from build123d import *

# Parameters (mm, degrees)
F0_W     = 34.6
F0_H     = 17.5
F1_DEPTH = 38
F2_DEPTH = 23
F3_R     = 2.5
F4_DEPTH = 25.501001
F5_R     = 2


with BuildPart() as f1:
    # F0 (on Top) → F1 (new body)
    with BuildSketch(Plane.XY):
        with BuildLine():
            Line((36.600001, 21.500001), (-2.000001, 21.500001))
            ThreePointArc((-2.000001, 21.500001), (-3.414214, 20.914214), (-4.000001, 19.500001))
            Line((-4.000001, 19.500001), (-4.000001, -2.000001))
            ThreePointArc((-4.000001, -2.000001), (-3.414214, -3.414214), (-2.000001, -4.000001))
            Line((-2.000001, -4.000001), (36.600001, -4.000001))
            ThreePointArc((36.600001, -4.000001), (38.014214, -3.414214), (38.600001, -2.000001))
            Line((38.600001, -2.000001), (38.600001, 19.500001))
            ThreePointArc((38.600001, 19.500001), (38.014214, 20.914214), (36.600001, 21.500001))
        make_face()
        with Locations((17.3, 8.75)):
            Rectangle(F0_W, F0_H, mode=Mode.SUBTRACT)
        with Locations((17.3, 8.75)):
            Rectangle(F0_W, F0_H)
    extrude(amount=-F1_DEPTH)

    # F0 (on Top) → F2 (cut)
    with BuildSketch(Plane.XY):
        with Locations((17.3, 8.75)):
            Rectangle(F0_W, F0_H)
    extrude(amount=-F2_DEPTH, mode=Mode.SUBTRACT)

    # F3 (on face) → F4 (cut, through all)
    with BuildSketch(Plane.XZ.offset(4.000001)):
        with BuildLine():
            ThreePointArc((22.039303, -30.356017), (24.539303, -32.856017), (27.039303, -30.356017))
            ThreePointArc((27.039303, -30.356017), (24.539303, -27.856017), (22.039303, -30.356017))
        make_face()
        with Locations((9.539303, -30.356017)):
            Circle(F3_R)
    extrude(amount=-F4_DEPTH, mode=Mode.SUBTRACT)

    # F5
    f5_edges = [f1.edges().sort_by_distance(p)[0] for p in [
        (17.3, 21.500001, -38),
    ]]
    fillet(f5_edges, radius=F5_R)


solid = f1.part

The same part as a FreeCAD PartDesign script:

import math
import FreeCAD as App
import Part
import Sketcher
Q = App.Units.Quantity


def edges_at(feature, points):
    """Names of the edges that pass closest to the given points."""
    edges = feature.Shape.Edges
    near = lambda p: min(range(len(edges)), key=lambda i: edges[i].distToShape(Part.Vertex(*p))[0])
    return sorted({f"Edge{near(p) + 1}" for p in points})

doc = App.newDocument("Part")
body = doc.addObject("PartDesign::Body", "Body")

# Sketch on XY plane
sketch1 = body.newObject("Sketcher::SketchObject", "Sketch")
sketch1.AttachmentSupport = (doc.getObject("XY_Plane"), [""])
sketch1.MapMode = "FlatFace"
sketch1.addGeometry([
    Part.LineSegment(App.Vector(36.600001, 21.500001, 0), App.Vector(-2.000001, 21.500001, 0)),  # 0
    Part.ArcOfCircle(Part.Circle(App.Vector(-1.999999, 19.499999, 0), App.Vector(0, 0, 1), 2.000002), math.radians(90.000055), math.radians(179.999945)),  # 1
    Part.LineSegment(App.Vector(-4.000001, 19.500001, 0), App.Vector(-4.000001, -2.000001, 0)),  # 2
    Part.ArcOfCircle(Part.Circle(App.Vector(-1.999999, -1.999999, 0), App.Vector(0, 0, 1), 2.000002), math.radians(-179.999945), math.radians(-90.000055)),  # 3
    Part.LineSegment(App.Vector(-2.000001, -4.000001, 0), App.Vector(36.600001, -4.000001, 0)),  # 4
    Part.ArcOfCircle(Part.Circle(App.Vector(36.599999, -1.999999, 0), App.Vector(0, 0, 1), 2.000002), math.radians(-89.999945), math.radians(-0.000055)),  # 5
    Part.LineSegment(App.Vector(38.600001, -2.000001, 0), App.Vector(38.600001, 19.500001, 0)),  # 6
    Part.ArcOfCircle(Part.Circle(App.Vector(36.599999, 19.499999, 0), App.Vector(0, 0, 1), 2.000002), math.radians(0.000055), math.radians(89.999945)),  # 7
], False)
sketch1.addConstraint([
    Sketcher.Constraint("Tangent", 0, 2, 1, 1),
    Sketcher.Constraint("Tangent", 1, 2, 2, 1),
    Sketcher.Constraint("Tangent", 2, 2, 3, 1),
    Sketcher.Constraint("Tangent", 3, 2, 4, 1),
    Sketcher.Constraint("Tangent", 4, 2, 5, 1),
    Sketcher.Constraint("Tangent", 5, 2, 6, 1),
    Sketcher.Constraint("Tangent", 6, 2, 7, 1),
    Sketcher.Constraint("Tangent", 7, 2, 0, 1),
    Sketcher.Constraint("Horizontal", 0),
    Sketcher.Constraint("Vertical", 2),
    Sketcher.Constraint("Horizontal", 4),
    Sketcher.Constraint("Vertical", 6),
    Sketcher.Constraint("Equal", 1, 3),
    Sketcher.Constraint("Equal", 3, 5),
    Sketcher.Constraint("Equal", 5, 7),
    Sketcher.Constraint("Radius", 1, Q("2.000002 mm")),
    Sketcher.Constraint("DistanceX", 0, 2, 0, 1, Q("38.600002 mm")),
    Sketcher.Constraint("DistanceX", 1, 3, -1, 1, Q("1.999999 mm")),
    Sketcher.Constraint("DistanceY", 3, 3, -1, 1, Q("1.999999 mm")),
    Sketcher.Constraint("DistanceY", -1, 1, 1, 3, Q("19.499999 mm")),
])
pad1 = body.newObject("PartDesign::Pad", "Pad")
pad1.Profile = sketch1
pad1.Length = 38
pad1.Reversed = True

# Sketch on XY plane
sketch2 = body.newObject("Sketcher::SketchObject", "Sketch001")
sketch2.AttachmentSupport = (doc.getObject("XY_Plane"), [""])
sketch2.MapMode = "FlatFace"
sketch2.addGeometry([
    Part.LineSegment(App.Vector(0, 17.5, 0), App.Vector(0, 0, 0)),
    Part.LineSegment(App.Vector(0, 0, 0), App.Vector(34.6, 0, 0)),
    Part.LineSegment(App.Vector(34.6, 0, 0), App.Vector(34.6, 17.5, 0)),
    Part.LineSegment(App.Vector(34.6, 17.5, 0), App.Vector(0, 17.5, 0)),
], False)
sketch2.addConstraint([
    Sketcher.Constraint("Coincident", 0, 2, 1, 1),
    Sketcher.Constraint("Coincident", 1, 2, 2, 1),
    Sketcher.Constraint("Coincident", 2, 2, 3, 1),
    Sketcher.Constraint("Coincident", 3, 2, 0, 1),
    Sketcher.Constraint("Vertical", 0),
    Sketcher.Constraint("Horizontal", 1),
    Sketcher.Constraint("Vertical", 2),
    Sketcher.Constraint("Horizontal", 3),
    Sketcher.Constraint("Coincident", 0, 2, -1, 1),
    Sketcher.Constraint("DistanceX", 1, 1, 1, 2, Q("34.6 mm")),
    Sketcher.Constraint("DistanceY", 0, 2, 0, 1, Q("17.5 mm")),
])
pocket1 = body.newObject("PartDesign::Pocket", "Pocket")
pocket1.Profile = sketch2
pocket1.Length = 23

# Sketch on XZ plane
sketch3 = body.newObject("Sketcher::SketchObject", "Sketch002")
sketch3.AttachmentSupport = (doc.getObject("XZ_Plane"), [""])
sketch3.MapMode = "FlatFace"
sketch3.AttachmentOffset = App.Placement(App.Vector(0, 0, 4.000001), App.Rotation())
sketch3.addGeometry([
    Part.Circle(App.Vector(24.539303, -30.356017, 0), App.Vector(0, 0, 1), 2.5),
    Part.Circle(App.Vector(9.539303, -30.356017, 0), App.Vector(0, 0, 1), 2.5),
], False)
sketch3.addConstraint([
    Sketcher.Constraint("Equal", 0, 1),
    Sketcher.Constraint("Horizontal", 0, 3, 1, 3),
    Sketcher.Constraint("Diameter", 0, Q("5 mm")),
    Sketcher.Constraint("DistanceX", 1, 3, 0, 3, Q("15 mm")),
    Sketcher.Constraint("DistanceX", -1, 1, 0, 3, Q("24.539303 mm")),
    Sketcher.Constraint("DistanceY", 0, 3, -1, 1, Q("30.356017 mm")),
])
pocket2 = body.newObject("PartDesign::Pocket", "Pocket001")
pocket2.Profile = sketch3
pocket2.Type = "ThroughAll"
doc.recompute()

fillet = body.newObject("PartDesign::Fillet", "Fillet")
fillet.Base = (pocket2, edges_at(pocket2, [(17.3, 21.5, -38)]))
fillet.Radius = 2

doc.recompute()
